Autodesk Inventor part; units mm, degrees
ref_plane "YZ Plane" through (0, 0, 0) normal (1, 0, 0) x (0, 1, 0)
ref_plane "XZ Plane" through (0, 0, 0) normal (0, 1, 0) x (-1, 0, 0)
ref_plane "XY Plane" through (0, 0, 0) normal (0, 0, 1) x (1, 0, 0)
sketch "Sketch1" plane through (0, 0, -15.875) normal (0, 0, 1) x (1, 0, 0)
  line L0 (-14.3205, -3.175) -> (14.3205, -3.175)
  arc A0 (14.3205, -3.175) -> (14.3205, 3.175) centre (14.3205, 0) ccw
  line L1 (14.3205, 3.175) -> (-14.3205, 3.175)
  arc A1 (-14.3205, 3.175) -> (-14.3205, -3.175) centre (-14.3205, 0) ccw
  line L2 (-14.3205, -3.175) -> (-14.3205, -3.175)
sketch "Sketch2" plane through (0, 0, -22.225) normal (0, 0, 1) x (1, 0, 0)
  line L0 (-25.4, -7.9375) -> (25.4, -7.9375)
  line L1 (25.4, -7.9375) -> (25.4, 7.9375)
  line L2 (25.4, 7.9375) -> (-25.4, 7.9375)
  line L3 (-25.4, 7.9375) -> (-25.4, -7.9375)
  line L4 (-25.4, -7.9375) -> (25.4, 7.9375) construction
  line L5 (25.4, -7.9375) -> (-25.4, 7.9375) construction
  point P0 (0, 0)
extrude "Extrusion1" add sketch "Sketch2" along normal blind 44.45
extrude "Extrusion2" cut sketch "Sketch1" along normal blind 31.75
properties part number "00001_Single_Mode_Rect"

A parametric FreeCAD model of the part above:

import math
import FreeCAD as App
import Part
import Sketcher

V = App.Vector
Q = App.Units.Quantity

doc = App.newDocument("Part")
body = doc.addObject("PartDesign::Body", "Body")

sketch1 = doc.addObject("Sketcher::SketchObject", "Sketch")
body.addObject(sketch1)
sketch1.AttachmentSupport = (doc.XY_Plane, [""])
sketch1.MapMode = "FlatFace"
sketch1.AttachmentOffset = App.Placement(V(0, 0, -0.875 * 25.4), App.Rotation())
sketch1.addGeometry([
    Part.LineSegment(V(-25.4, 7.9375, 0), V(-25.4, -7.9375, 0)),
    Part.LineSegment(V(-25.4, -7.9375, 0), V(25.4, -7.9375, 0)),
    Part.LineSegment(V(25.4, -7.9375, 0), V(25.4, 7.9375, 0)),
    Part.LineSegment(V(25.4, 7.9375, 0), V(-25.4, 7.9375, 0)),
], False)
sketch1.addConstraint([
    Sketcher.Constraint("Coincident", 0, 2, 1, 1),
    Sketcher.Constraint("Coincident", 1, 2, 2, 1),
    Sketcher.Constraint("Coincident", 2, 2, 3, 1),
    Sketcher.Constraint("Coincident", 3, 2, 0, 1),
    Sketcher.Constraint("Vertical", 0),
    Sketcher.Constraint("Horizontal", 1),
    Sketcher.Constraint("Vertical", 2),
    Sketcher.Constraint("Horizontal", 3),
    Sketcher.Constraint("Symmetric", 0, 2, 2, 2, -1, 1),
    Sketcher.Constraint("DistanceX", 1, 1, 1, 2, Q("2 in")),
    Sketcher.Constraint("DistanceY", 0, 2, 0, 1, Q("0.625 in")),
])
pad1 = doc.addObject("PartDesign::Pad", "Pad")
body.addObject(pad1)
pad1.Profile = sketch1
pad1.Length = Q("1.75 in")

sketch2 = doc.addObject("Sketcher::SketchObject", "Sketch001")
body.addObject(sketch2)
sketch2.AttachmentSupport = (doc.XY_Plane, [""])
sketch2.MapMode = "FlatFace"
sketch2.AttachmentOffset = App.Placement(V(0, 0, -0.625 * 25.4), App.Rotation())
sketch2.addGeometry([
    Part.ArcOfCircle(Part.Circle(V(-14.3205, 0, 0), V(0, 0, 1), 3.175), math.radians(90), math.radians(270)),
    Part.LineSegment(V(-14.3205, -3.175, 0), V(14.3205, -3.175, 0)),
    Part.ArcOfCircle(Part.Circle(V(14.3205, 0, 0), V(0, 0, 1), 3.175), math.radians(-90), math.radians(90)),
    Part.LineSegment(V(14.3205, 3.175, 0), V(-14.3205, 3.175, 0)),
], False)
sketch2.addConstraint([
    Sketcher.Constraint("Tangent", 0, 2, 1, 1),
    Sketcher.Constraint("Tangent", 1, 2, 2, 1),
    Sketcher.Constraint("Tangent", 2, 2, 3, 1),
    Sketcher.Constraint("Tangent", 3, 2, 0, 1),
    Sketcher.Constraint("Horizontal", 1),
    Sketcher.Constraint("Horizontal", 3),
    Sketcher.Constraint("Symmetric", 0, 3, 2, 3, -1, 1),
    Sketcher.Constraint("Radius", 0, Q("0.125 in")),
    Sketcher.Constraint("DistanceX", 1, 1, 1, 2, Q("1.1276 in")),
])
pocket1 = doc.addObject("PartDesign::Pocket", "Pocket")
body.addObject(pocket1)
pocket1.Profile = sketch2
pocket1.Length = Q("1.25 in")
pocket1.Reversed = True

doc.recompute()
